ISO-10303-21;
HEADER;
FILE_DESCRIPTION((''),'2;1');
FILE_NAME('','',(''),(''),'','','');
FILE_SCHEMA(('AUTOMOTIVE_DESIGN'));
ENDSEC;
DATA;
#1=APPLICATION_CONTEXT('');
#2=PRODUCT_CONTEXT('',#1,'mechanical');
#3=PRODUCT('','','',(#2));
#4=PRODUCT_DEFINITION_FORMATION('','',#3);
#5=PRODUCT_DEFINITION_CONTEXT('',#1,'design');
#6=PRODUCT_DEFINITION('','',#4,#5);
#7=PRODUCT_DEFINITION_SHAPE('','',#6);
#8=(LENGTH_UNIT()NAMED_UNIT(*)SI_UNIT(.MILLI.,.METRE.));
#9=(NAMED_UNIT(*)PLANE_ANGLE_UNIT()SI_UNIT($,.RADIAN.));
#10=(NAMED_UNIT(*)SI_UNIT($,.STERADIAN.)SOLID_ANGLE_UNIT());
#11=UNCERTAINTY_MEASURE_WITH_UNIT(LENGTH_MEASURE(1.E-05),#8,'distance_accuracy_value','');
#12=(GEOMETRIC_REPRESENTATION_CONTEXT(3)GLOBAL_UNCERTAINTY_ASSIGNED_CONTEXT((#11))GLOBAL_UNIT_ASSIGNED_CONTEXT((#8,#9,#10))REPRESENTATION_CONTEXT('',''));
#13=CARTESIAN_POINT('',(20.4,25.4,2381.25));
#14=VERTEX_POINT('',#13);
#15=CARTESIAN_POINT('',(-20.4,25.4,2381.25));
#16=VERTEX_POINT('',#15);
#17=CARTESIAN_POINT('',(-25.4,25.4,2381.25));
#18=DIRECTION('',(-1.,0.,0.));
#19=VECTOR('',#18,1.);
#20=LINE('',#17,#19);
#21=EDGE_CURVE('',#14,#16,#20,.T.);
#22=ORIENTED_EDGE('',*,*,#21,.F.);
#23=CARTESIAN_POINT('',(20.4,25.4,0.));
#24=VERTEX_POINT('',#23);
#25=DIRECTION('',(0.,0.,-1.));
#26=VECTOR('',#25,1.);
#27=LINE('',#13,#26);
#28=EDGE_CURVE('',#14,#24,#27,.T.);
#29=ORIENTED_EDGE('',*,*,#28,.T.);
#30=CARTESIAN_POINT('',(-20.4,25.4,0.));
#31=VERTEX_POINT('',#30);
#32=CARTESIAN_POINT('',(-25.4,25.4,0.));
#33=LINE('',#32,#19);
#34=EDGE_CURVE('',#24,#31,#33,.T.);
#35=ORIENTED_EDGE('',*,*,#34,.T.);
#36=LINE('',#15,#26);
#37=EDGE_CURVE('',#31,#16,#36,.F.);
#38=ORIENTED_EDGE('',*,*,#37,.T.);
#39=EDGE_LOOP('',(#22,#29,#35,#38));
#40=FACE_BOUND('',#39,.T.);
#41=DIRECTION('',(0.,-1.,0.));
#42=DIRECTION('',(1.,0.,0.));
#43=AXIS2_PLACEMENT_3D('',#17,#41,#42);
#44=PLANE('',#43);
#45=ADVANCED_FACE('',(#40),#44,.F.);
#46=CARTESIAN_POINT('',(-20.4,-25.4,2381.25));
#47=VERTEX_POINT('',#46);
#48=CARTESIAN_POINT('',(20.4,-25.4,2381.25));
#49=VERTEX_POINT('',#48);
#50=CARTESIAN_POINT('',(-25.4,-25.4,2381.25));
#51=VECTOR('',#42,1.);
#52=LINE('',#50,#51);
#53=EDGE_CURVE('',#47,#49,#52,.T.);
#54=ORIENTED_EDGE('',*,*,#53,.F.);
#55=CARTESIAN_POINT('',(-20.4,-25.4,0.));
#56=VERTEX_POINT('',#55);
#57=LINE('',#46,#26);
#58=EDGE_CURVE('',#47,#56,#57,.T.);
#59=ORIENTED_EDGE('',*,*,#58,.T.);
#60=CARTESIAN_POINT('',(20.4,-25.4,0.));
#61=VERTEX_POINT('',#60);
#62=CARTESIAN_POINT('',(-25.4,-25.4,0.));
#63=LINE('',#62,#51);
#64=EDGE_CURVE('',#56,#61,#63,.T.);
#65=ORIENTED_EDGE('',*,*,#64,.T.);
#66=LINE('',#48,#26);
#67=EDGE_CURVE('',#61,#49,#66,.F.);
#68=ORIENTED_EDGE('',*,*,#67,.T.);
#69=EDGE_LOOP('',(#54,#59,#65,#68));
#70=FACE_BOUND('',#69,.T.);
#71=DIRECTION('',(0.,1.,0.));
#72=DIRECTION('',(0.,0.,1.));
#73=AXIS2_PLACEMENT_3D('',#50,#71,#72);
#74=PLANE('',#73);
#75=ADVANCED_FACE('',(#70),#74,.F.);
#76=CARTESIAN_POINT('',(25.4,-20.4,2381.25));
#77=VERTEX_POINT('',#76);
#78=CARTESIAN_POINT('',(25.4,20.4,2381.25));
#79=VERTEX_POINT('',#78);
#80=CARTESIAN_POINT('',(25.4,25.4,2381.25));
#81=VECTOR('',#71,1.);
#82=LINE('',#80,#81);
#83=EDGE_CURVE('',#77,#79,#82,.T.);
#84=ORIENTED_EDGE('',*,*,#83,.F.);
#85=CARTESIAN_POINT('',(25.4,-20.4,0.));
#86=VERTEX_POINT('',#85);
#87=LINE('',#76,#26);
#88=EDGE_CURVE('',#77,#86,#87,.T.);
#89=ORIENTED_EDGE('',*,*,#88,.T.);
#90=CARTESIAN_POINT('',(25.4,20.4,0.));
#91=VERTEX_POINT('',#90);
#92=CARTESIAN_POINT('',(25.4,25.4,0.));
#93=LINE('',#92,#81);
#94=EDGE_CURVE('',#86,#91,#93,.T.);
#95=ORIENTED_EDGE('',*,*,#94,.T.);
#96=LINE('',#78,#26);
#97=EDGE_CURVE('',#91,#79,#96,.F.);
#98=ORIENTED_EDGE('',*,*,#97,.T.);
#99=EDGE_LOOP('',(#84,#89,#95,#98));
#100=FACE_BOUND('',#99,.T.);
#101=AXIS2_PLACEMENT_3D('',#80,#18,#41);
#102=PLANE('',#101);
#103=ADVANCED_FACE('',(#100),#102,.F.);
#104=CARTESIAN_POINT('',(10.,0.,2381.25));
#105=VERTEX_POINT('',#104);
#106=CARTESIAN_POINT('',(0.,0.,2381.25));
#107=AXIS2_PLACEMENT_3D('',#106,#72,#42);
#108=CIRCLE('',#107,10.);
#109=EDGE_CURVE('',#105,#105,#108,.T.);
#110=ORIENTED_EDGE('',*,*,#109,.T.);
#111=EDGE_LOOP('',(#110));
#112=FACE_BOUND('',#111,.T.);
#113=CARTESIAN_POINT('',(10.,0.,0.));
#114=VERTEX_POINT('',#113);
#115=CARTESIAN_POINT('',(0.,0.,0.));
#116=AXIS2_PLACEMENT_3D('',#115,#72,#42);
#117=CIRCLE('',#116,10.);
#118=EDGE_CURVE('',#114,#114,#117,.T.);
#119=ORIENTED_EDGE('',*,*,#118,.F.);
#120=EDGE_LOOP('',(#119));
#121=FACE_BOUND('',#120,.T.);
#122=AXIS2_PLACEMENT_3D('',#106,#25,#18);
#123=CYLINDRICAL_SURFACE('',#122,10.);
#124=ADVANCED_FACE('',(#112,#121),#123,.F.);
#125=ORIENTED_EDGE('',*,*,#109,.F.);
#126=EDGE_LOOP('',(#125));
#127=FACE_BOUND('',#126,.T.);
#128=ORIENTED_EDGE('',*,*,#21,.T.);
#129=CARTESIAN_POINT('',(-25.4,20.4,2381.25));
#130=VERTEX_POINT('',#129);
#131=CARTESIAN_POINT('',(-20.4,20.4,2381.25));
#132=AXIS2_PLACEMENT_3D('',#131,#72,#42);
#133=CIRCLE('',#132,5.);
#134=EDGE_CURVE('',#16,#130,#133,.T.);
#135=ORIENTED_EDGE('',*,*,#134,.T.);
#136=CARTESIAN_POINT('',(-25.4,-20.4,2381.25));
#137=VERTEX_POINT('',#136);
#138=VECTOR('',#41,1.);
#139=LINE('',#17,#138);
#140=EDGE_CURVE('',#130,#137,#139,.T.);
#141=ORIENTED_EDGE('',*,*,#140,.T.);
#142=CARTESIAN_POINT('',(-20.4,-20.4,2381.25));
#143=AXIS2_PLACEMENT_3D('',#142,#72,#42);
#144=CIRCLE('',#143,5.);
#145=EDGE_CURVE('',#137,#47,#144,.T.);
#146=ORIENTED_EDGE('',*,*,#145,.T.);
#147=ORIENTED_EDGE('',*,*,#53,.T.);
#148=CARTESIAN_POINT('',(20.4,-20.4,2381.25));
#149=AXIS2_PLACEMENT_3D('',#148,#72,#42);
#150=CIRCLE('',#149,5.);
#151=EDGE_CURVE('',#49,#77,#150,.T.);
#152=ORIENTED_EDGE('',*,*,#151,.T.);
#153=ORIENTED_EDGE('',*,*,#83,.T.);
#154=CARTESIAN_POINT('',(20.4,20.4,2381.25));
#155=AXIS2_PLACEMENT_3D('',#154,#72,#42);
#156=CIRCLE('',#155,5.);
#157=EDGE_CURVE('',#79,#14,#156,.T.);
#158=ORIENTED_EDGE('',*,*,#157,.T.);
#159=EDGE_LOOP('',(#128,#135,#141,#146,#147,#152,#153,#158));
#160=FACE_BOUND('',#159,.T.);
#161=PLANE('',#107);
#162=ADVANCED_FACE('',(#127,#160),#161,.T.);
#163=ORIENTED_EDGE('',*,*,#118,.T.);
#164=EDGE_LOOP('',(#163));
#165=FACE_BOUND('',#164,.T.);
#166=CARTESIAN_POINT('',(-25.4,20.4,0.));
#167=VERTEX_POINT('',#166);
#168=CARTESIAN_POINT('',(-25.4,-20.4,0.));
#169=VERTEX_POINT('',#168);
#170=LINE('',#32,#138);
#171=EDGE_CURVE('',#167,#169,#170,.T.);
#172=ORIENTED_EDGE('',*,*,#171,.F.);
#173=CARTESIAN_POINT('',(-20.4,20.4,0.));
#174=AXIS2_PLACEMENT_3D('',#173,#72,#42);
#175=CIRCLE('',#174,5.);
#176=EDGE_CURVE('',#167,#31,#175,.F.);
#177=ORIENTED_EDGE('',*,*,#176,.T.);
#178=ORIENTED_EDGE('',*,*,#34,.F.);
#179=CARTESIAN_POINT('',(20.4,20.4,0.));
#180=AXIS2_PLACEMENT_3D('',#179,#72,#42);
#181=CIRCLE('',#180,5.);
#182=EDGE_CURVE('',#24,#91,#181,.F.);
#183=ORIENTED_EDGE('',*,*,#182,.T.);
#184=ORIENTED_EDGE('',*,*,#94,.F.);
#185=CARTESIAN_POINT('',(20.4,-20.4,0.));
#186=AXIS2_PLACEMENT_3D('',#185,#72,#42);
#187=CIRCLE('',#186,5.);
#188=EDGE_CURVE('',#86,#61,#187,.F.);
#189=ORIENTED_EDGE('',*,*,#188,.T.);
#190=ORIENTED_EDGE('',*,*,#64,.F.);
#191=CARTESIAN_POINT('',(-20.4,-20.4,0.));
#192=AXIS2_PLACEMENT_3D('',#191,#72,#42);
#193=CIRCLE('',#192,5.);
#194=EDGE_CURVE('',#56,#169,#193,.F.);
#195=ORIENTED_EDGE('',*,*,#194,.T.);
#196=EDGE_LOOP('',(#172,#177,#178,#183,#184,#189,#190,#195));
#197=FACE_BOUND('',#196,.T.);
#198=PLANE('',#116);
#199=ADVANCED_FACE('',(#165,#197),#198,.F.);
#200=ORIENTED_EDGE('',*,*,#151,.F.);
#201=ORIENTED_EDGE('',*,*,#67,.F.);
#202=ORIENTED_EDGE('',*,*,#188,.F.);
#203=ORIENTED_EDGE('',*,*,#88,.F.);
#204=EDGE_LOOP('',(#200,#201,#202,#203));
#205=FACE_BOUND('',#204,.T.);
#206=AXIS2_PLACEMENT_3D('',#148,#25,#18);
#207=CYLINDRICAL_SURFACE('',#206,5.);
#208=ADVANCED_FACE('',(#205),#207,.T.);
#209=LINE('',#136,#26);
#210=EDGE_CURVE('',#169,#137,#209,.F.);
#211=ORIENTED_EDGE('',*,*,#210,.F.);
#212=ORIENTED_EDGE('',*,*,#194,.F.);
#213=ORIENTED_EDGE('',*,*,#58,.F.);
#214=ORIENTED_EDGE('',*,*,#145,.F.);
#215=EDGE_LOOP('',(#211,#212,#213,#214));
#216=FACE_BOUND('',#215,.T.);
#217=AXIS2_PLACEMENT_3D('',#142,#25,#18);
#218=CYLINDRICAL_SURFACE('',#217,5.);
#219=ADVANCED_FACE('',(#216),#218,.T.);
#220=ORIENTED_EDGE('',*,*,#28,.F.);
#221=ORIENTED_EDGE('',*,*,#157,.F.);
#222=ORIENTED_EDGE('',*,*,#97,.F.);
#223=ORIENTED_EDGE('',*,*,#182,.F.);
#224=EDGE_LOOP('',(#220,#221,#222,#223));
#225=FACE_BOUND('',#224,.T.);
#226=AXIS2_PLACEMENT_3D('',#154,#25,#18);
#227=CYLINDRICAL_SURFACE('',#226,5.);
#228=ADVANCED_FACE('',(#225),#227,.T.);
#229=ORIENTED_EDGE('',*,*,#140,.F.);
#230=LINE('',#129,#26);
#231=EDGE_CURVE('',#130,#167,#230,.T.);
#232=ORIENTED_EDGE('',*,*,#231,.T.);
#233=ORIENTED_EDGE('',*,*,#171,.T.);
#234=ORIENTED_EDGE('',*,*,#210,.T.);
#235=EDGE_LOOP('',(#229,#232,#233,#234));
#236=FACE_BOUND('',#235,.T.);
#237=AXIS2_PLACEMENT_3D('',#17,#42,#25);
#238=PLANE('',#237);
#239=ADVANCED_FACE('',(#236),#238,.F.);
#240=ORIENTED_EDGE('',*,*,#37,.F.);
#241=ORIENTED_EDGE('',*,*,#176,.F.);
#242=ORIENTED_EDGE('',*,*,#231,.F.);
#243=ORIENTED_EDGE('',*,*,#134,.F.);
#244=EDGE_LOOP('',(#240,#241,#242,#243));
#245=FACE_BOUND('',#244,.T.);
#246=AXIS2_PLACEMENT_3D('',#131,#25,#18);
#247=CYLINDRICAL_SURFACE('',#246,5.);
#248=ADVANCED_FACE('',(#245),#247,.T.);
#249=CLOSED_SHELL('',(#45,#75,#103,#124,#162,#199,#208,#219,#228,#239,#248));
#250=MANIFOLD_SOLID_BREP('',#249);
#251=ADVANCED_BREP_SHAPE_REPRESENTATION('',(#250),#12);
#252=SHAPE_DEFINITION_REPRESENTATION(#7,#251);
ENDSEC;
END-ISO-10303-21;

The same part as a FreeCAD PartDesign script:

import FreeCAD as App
import Part
import Sketcher
Q = App.Units.Quantity


def edges_at(feature, points):
    """Names of the edges that pass closest to the given points."""
    edges = feature.Shape.Edges
    near = lambda p: min(range(len(edges)), key=lambda i: edges[i].distToShape(Part.Vertex(*p))[0])
    return sorted({f"Edge{near(p) + 1}" for p in points})


def add_polygon(sketch, points):
    """Adds a closed chain of lines whose ends are joined by coincident constraints."""
    first, n = sketch.GeometryCount, len(points)
    for a, b in zip(points, points[1:] + points[:1]):
        sketch.addGeometry(Part.LineSegment(App.Vector(*a, 0), App.Vector(*b, 0)), False)
    for i in range(n):
        sketch.addConstraint(Sketcher.Constraint("Coincident", first + i, 2, first + (i + 1) % n, 1))

doc = App.newDocument("Part")
body = doc.addObject("PartDesign::Body", "Body")

# Sketch on XY plane
sketch1 = body.newObject("Sketcher::SketchObject", "Sketch")
sketch1.AttachmentSupport = (doc.getObject("XY_Plane"), [""])
sketch1.MapMode = "FlatFace"
add_polygon(sketch1, [(-25, 25), (-25, -25), (25, -25), (25, 25)])  # lines 0-3
sketch1.addGeometry(Part.Circle(App.Vector(0, 0, 0), App.Vector(0, 0, 1), 10), False)  # 4
sketch1.addConstraint([
    Sketcher.Constraint("Vertical", 0),
    Sketcher.Constraint("Horizontal", 1),
    Sketcher.Constraint("Vertical", 2),
    Sketcher.Constraint("Horizontal", 3),
    Sketcher.Constraint("Coincident", 4, 3, -1, 1),
    Sketcher.Constraint("Symmetric", 0, 2, 2, 2, -1, 1),
    Sketcher.Constraint("Equal", 3, 0),
    Sketcher.Constraint("Diameter", 4, Q("20 mm")),
    Sketcher.Constraint("DistanceX", 1, 1, 1, 2, Q("50.8 mm")),
])
pad1 = body.newObject("PartDesign::Pad", "Pad")
pad1.Profile = sketch1
pad1.Length = 2381.25
doc.recompute()

fillet = body.newObject("PartDesign::Fillet", "Fillet")
fillet.Base = (pad1, edges_at(pad1, [
    (25.4, -25.4, 1190.625),
    (-25.4, -25.4, 1190.625),
    (-25.4, 25.4, 1190.625),
    (25.4, 25.4, 1190.625),
]))
fillet.Radius = 5

doc.recompute()
